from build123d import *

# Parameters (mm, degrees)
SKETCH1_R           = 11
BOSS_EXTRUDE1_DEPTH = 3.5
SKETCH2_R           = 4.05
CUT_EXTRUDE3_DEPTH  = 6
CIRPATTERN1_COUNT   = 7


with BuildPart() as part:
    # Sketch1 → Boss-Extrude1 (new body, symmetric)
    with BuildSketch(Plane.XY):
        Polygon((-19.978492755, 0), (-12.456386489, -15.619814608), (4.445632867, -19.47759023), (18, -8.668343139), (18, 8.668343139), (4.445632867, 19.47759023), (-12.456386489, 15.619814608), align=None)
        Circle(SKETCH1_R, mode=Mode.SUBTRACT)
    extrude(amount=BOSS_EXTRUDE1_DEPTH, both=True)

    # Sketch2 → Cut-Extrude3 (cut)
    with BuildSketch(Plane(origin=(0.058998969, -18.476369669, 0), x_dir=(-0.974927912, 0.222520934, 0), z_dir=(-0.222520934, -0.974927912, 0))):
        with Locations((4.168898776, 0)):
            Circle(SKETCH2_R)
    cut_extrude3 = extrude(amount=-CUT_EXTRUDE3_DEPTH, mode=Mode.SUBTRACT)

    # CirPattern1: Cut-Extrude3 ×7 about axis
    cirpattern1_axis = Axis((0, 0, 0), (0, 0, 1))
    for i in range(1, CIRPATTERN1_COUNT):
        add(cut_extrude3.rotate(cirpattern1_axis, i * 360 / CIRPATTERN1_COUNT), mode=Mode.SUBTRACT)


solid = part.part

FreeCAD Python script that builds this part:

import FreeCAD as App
import Part
import Sketcher
Q = App.Units.Quantity

doc = App.newDocument("Part")
params = doc.addObject("Spreadsheet::Sheet", "Params")
for row, (alias, value) in enumerate([
    ("sketch1_diameter", "22 mm"),
    ("pad1_length", "7 mm"),
    ("sketch2_diameter", "8.1 mm"),
    ("pocket1_length", "6 mm"),
], start=1):
    params.set(f"A{row}", alias)
    params.set(f"B{row}", "=" + value)
    params.setAlias(f"B{row}", alias)

body = doc.addObject("PartDesign::Body", "Body")

# Sketch on XY plane
sketch1 = doc.addObject("Sketcher::SketchObject", "Sketch")
body.addObject(sketch1)
sketch1.AttachmentSupport = (doc.XY_Plane, [""])
sketch1.MapMode = "FlatFace"
sketch1.addGeometry([
    Part.LineSegment(App.Vector(-19.978493, 0, 0), App.Vector(-12.456386, -15.619815, 0)),  # 0
    Part.LineSegment(App.Vector(-12.456386, -15.619815, 0), App.Vector(4.445633, -19.47759, 0)),  # 1
    Part.LineSegment(App.Vector(4.445633, -19.47759, 0), App.Vector(18, -8.668343, 0)),  # 2
    Part.LineSegment(App.Vector(18, -8.668343, 0), App.Vector(18, 8.668343, 0)),  # 3
    Part.LineSegment(App.Vector(18, 8.668343, 0), App.Vector(4.445633, 19.47759, 0)),  # 4
    Part.LineSegment(App.Vector(4.445633, 19.47759, 0), App.Vector(-12.456386, 15.619815, 0)),  # 5
    Part.LineSegment(App.Vector(-12.456386, 15.619815, 0), App.Vector(-19.978493, 0, 0)),  # 6
    Part.Circle(App.Vector(0, 0, 0), App.Vector(0, 0, 1), 11),  # 7
], False)
sketch1.addConstraint([
    Sketcher.Constraint("Coincident", 0, 2, 1, 1),
    Sketcher.Constraint("Coincident", 1, 2, 2, 1),
    Sketcher.Constraint("Coincident", 2, 2, 3, 1),
    Sketcher.Constraint("Coincident", 3, 2, 4, 1),
    Sketcher.Constraint("Coincident", 4, 2, 5, 1),
    Sketcher.Constraint("Coincident", 5, 2, 6, 1),
    Sketcher.Constraint("Coincident", 6, 2, 0, 1),
    Sketcher.Constraint("Vertical", 3),
    Sketcher.Constraint("Coincident", 7, 3, -1, 1),
    Sketcher.Constraint("Symmetric", 1, 2, 4, 2, -1),
    Sketcher.Constraint("Symmetric", 0, 2, 5, 2, -1),
    Sketcher.Constraint("PointOnObject", 6, 2, -1),
    Sketcher.Constraint("Equal", 0, 1),
    Sketcher.Constraint("Equal", 1, 2),
    Sketcher.Constraint("Equal", 2, 4),
    Sketcher.Constraint("Diameter", 7, Q("22 mm")),
    Sketcher.Constraint("DistanceX", -1, 1, 2, 2, Q("18 mm")),
    Sketcher.Constraint("DistanceY", 3, 1, 3, 2, Q("17.336686 mm")),
    Sketcher.Constraint("DistanceY", 1, 2, -1, 1, Q("19.47759 mm")),
    Sketcher.Constraint("DistanceX", 0, 2, 1, 2, Q("16.902019 mm")),
    Sketcher.Constraint("DistanceY", 0, 2, 2, 2, Q("6.951471 mm")),
])
sketch1.setExpression("Constraints[15]", "Params.sketch1_diameter")
pad1 = doc.addObject("PartDesign::Pad", "Pad")
body.addObject(pad1)
pad1.Profile = sketch1
pad1.setExpression("Length", "Params.pad1_length")
pad1.Midplane = True

# Sketch on an angled plane
sketch2 = doc.addObject("Sketcher::SketchObject", "Sketch001")
body.addObject(sketch2)
sketch2.Placement = App.Placement(App.Vector(0.058999, -18.47637, 0), App.Rotation(App.Vector(-0.974927912, 0.222520934, 0), App.Vector(0, 0, -1), App.Vector(-0.222520934, -0.974927912, 0), "ZXY"))
sketch2.addGeometry(Part.Circle(App.Vector(4.168899, 0, 0), App.Vector(0, 0, 1), 4.05), False)
sketch2.addConstraint([
    Sketcher.Constraint("PointOnObject", 0, 3, -1),
    Sketcher.Constraint("Diameter", 0, Q("8.1 mm")),
    Sketcher.Constraint("DistanceX", -1, 1, 0, 3, Q("4.168899 mm")),
])
sketch2.setExpression("Constraints[1]", "Params.sketch2_diameter")
pocket1 = doc.addObject("PartDesign::Pocket", "Pocket")
body.addObject(pocket1)
pocket1.Profile = sketch2
pocket1.setExpression("Length", "Params.pocket1_length")
doc.recompute()

polarpattern = doc.addObject("PartDesign::PolarPattern", "PolarPattern")
body.addObject(polarpattern)
polarpattern.Originals = [pocket1]
polarpattern.Axis = (doc.Z_Axis, [""])
polarpattern.Angle = 360
polarpattern.Occurrences = 7
body.Tip = polarpattern

doc.recompute()
